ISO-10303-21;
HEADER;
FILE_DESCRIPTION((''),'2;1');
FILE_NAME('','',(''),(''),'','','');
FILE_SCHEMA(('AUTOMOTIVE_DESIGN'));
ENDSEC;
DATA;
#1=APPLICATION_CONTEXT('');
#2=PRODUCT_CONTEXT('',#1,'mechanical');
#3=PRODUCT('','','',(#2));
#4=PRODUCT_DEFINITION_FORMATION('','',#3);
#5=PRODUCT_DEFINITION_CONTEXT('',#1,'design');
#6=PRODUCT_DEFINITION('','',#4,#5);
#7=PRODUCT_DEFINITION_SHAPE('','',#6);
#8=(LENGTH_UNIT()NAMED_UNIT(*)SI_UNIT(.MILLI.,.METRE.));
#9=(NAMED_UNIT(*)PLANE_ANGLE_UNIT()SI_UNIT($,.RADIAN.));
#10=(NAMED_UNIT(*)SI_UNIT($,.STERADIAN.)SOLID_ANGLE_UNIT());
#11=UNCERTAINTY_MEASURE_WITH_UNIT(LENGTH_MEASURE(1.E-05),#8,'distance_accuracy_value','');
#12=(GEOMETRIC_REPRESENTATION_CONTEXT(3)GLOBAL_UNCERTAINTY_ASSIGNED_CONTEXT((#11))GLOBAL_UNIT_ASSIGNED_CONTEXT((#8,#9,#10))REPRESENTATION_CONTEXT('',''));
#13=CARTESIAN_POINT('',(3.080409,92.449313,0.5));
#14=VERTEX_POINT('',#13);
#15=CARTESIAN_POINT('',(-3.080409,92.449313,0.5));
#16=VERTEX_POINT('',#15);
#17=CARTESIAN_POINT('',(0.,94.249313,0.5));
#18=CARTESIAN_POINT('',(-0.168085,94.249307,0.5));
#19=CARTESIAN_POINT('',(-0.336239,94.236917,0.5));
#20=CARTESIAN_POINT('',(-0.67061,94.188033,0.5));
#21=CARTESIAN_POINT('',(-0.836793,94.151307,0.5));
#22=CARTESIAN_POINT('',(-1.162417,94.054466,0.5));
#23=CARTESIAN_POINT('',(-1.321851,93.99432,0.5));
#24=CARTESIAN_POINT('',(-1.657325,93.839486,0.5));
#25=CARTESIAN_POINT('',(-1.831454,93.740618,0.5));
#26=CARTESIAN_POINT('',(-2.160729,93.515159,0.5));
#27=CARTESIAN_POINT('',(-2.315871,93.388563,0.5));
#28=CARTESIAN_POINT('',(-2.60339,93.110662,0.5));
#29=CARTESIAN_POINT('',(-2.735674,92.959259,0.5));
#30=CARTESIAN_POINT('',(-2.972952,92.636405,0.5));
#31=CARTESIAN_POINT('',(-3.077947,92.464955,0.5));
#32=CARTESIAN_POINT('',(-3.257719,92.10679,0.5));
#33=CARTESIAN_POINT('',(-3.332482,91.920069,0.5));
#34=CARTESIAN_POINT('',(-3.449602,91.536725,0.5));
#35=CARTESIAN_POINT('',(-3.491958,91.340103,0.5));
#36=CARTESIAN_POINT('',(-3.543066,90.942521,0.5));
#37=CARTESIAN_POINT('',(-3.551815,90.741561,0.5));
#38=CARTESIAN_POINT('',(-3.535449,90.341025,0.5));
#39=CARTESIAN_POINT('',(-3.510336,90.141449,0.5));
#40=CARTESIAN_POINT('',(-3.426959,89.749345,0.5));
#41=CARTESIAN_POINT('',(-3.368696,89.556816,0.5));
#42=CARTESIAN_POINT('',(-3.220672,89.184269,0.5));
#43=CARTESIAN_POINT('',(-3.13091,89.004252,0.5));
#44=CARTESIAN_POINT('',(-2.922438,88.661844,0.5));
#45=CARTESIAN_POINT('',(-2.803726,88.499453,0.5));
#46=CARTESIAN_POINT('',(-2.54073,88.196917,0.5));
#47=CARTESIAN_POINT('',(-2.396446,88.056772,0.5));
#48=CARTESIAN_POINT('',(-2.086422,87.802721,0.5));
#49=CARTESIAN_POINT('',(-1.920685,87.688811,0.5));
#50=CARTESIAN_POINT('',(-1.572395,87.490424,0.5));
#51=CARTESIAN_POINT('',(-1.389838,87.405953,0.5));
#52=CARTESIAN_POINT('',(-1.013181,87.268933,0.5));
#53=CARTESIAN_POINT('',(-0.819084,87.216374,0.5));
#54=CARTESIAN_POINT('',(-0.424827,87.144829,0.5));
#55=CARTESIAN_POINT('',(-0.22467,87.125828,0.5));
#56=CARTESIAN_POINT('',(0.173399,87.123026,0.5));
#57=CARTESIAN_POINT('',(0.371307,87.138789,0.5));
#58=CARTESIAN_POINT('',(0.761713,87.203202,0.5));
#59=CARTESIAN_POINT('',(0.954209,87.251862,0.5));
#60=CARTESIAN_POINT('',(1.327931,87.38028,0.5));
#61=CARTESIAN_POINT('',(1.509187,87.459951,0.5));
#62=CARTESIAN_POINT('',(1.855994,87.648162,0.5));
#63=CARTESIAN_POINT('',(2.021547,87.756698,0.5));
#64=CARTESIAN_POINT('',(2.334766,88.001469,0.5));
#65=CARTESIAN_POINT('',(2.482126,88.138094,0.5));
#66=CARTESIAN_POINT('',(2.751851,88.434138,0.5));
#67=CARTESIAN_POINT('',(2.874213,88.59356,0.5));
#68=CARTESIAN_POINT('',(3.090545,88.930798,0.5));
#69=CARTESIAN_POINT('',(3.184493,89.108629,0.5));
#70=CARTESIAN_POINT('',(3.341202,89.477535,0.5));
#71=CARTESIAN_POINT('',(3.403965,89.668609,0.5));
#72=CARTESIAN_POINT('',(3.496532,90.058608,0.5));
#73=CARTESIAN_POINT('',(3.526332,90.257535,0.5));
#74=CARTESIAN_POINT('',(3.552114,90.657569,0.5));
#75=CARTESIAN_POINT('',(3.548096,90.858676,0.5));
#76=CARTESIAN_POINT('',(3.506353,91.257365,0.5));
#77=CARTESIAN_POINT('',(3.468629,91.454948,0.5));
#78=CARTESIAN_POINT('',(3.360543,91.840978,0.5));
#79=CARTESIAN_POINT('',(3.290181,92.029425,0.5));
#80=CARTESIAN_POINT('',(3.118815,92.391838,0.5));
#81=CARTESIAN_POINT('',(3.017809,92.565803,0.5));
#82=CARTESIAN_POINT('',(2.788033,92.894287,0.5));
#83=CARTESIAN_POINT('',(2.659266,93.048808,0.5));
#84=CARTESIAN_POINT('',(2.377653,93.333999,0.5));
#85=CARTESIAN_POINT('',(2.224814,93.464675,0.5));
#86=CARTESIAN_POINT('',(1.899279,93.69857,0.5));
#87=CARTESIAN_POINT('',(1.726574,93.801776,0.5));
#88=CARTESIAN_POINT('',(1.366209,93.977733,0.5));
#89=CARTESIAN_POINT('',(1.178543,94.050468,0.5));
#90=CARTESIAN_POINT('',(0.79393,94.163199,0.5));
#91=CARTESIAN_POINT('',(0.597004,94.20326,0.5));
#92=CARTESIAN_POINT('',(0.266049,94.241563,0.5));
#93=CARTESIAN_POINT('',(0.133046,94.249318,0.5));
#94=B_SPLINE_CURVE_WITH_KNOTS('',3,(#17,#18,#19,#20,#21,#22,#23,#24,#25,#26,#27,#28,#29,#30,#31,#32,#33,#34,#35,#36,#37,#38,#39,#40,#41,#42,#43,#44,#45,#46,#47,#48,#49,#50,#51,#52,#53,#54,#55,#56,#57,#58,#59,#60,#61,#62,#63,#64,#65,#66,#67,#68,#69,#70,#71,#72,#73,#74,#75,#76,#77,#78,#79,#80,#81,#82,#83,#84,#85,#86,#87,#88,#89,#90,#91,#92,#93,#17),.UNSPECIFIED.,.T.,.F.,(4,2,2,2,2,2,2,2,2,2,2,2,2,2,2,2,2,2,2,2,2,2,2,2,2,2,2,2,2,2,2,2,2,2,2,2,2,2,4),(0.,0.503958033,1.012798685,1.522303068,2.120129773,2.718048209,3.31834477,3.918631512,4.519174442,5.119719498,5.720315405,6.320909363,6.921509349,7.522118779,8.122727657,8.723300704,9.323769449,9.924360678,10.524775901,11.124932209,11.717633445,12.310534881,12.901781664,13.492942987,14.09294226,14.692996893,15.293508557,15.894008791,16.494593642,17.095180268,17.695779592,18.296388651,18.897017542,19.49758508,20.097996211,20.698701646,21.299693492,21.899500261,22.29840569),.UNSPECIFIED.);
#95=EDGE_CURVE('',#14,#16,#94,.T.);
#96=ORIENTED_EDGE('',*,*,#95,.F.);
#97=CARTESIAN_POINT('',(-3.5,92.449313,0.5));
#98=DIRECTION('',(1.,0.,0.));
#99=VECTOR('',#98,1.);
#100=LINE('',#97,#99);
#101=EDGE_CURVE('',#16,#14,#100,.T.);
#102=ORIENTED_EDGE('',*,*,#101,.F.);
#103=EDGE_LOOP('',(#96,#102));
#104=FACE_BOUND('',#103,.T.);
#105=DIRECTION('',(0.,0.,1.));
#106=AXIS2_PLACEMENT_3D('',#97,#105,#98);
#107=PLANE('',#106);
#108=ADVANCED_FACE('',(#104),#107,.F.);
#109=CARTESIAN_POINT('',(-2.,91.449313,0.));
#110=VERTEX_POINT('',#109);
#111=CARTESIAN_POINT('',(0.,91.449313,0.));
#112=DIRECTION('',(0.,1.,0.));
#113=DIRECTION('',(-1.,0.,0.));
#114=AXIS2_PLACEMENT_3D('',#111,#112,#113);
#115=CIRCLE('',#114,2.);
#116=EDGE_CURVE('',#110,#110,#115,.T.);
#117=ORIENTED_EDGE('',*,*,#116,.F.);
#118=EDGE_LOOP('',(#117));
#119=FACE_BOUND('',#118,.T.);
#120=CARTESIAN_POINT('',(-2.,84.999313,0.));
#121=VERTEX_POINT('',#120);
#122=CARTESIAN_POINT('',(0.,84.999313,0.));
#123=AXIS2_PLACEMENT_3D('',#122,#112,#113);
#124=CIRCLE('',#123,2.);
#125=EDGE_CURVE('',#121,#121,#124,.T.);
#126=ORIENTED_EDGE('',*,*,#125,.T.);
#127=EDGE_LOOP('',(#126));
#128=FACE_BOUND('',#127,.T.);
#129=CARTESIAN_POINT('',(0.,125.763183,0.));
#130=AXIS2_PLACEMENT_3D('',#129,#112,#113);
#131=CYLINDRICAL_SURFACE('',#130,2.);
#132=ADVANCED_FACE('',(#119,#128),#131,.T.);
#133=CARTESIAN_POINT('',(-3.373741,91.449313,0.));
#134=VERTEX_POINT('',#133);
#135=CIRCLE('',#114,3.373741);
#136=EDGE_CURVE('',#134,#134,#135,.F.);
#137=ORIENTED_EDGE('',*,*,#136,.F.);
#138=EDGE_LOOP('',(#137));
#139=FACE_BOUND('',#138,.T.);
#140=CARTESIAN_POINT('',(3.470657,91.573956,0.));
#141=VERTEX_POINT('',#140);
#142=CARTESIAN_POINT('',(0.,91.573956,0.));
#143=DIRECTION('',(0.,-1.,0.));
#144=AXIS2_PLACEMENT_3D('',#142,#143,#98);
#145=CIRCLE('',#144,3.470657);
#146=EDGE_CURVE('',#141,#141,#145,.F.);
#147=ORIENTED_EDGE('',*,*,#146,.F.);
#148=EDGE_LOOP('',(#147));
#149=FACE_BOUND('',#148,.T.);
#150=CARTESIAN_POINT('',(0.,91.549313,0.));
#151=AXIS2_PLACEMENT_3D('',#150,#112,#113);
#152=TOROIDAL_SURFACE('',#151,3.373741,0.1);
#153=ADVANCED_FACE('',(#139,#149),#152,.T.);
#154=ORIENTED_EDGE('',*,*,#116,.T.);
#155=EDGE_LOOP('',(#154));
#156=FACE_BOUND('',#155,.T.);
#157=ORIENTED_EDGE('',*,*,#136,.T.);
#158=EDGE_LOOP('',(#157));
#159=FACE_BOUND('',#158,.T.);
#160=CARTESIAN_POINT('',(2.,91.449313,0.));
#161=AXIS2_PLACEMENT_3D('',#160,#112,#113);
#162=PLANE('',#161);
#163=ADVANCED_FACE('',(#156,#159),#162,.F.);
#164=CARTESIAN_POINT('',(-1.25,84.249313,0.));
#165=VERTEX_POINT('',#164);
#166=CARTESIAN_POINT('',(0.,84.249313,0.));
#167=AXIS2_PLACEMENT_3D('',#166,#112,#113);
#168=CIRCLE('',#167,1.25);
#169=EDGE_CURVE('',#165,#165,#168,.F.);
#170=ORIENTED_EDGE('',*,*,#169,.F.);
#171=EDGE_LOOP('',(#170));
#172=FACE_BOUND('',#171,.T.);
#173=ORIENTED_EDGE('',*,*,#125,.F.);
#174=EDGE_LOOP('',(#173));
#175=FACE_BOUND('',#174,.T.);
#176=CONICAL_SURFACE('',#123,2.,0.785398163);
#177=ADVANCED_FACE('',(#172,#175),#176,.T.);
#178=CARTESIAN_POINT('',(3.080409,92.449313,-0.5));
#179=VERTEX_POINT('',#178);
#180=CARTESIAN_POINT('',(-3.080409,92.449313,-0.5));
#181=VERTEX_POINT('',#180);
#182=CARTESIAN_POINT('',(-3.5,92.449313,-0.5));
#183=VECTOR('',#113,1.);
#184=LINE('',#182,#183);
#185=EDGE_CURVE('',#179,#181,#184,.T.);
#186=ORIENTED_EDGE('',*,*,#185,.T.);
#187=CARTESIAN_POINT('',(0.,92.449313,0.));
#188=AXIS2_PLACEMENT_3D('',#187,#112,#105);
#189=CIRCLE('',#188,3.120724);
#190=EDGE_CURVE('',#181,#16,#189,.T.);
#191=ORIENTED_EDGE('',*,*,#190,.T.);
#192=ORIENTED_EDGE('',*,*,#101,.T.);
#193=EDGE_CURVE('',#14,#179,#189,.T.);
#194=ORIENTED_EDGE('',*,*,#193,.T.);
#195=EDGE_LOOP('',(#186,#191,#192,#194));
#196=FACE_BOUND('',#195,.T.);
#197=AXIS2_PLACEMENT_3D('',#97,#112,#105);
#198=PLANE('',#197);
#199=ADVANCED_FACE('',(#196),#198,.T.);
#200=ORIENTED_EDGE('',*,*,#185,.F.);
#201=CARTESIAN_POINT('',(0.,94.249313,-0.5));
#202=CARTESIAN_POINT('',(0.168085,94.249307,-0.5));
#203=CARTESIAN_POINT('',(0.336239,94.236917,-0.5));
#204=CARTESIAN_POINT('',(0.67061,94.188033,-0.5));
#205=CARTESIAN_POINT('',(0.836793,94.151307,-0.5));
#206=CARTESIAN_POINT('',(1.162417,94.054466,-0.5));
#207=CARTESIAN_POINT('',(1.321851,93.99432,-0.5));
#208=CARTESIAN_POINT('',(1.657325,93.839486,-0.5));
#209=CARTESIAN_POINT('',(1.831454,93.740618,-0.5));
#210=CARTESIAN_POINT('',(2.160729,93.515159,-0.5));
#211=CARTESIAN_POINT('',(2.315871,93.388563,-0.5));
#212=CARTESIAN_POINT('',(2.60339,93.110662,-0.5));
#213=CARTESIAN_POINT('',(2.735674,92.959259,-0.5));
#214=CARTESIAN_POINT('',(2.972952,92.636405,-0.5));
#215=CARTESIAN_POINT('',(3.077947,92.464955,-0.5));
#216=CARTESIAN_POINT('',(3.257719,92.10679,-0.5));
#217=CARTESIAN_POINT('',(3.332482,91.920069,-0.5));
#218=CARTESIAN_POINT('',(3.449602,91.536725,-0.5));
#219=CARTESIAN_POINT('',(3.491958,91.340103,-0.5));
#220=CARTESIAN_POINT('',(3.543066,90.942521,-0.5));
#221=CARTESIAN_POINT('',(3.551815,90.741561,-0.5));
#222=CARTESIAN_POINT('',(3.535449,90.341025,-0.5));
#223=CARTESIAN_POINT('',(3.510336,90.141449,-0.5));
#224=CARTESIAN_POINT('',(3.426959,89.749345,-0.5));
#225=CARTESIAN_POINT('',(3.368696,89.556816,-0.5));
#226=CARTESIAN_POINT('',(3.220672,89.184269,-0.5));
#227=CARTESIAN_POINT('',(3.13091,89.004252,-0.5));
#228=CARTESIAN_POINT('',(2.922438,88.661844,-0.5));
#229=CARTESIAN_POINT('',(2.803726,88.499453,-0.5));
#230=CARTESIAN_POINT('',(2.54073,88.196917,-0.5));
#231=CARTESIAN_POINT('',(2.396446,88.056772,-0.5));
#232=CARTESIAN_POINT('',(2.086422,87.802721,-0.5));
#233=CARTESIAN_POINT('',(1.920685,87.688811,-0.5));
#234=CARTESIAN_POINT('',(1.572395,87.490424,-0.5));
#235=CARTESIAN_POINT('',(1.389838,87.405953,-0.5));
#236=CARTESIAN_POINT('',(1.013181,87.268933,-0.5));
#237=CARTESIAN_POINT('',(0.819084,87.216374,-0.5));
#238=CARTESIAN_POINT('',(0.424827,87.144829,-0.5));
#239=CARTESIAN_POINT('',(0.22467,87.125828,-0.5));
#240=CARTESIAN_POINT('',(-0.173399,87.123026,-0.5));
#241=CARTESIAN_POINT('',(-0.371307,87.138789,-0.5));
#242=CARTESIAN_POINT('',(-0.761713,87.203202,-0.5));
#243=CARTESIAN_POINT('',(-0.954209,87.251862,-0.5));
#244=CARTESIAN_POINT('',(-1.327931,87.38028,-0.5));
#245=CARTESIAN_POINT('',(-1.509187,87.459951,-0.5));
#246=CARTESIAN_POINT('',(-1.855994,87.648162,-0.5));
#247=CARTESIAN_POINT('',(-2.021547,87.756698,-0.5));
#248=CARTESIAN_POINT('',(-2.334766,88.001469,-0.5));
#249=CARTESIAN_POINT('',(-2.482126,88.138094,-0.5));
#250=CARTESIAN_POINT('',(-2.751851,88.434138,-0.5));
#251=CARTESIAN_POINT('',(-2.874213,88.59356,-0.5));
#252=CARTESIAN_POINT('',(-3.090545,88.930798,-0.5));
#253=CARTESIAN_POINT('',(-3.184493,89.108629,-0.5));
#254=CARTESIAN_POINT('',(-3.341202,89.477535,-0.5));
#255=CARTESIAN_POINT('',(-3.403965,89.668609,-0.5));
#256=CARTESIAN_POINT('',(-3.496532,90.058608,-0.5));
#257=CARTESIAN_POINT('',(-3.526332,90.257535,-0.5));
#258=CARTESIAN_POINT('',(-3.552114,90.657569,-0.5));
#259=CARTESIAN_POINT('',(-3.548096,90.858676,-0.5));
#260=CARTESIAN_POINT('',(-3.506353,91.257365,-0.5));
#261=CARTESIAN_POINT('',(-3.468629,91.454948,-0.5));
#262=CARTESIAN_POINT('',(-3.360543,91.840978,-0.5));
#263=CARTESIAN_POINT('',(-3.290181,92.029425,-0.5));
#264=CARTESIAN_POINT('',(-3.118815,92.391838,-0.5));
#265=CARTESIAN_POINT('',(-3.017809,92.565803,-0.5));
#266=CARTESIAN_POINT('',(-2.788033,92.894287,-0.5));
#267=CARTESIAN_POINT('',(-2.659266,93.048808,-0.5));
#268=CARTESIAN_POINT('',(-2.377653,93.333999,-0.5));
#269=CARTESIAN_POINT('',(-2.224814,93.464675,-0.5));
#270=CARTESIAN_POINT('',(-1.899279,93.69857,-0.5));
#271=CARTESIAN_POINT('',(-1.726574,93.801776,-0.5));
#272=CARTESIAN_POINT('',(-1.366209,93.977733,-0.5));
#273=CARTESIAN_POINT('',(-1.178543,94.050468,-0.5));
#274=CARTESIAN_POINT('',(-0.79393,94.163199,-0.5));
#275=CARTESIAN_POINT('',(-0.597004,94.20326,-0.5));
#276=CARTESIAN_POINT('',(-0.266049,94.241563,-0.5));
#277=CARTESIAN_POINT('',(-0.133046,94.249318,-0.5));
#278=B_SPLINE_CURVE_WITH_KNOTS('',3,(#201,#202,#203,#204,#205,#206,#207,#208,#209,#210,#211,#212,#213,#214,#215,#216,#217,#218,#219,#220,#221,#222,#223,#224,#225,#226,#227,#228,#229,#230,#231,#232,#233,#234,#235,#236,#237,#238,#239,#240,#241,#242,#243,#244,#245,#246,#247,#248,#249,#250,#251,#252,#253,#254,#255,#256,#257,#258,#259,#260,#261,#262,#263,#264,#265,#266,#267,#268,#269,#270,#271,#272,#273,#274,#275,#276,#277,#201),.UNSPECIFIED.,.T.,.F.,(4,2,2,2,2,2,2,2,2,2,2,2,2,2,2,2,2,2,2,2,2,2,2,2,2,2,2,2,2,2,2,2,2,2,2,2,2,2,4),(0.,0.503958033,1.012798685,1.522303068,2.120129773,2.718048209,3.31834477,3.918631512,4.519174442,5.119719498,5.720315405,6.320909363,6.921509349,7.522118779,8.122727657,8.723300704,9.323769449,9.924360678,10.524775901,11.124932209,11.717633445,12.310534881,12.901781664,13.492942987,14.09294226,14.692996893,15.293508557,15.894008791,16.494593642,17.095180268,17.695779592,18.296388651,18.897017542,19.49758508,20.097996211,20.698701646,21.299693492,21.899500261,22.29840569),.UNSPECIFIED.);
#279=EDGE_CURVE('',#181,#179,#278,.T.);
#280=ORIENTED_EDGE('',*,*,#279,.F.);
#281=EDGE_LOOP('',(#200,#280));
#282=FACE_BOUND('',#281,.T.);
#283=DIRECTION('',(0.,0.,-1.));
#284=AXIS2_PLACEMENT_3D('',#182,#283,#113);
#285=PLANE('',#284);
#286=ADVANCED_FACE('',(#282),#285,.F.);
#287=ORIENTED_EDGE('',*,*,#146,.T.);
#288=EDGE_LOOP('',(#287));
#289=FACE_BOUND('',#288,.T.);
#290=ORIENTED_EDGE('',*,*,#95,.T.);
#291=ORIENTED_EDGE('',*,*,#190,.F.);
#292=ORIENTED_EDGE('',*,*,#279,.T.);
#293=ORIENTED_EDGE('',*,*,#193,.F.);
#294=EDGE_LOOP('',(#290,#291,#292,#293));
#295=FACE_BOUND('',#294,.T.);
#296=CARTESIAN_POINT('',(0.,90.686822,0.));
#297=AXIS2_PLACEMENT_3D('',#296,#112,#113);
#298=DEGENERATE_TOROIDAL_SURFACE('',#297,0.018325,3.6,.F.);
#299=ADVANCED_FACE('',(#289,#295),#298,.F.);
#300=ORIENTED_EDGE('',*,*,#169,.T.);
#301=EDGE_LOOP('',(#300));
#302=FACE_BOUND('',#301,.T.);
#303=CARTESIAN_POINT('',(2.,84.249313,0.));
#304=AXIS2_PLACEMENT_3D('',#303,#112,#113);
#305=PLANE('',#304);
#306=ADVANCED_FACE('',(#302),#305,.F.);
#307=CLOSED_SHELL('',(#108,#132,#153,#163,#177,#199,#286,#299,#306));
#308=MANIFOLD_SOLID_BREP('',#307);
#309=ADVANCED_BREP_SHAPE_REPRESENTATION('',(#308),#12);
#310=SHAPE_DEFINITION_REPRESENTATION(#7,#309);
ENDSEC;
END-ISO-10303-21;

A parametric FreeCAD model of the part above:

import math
import FreeCAD as App
import Part
import Sketcher

V = App.Vector
Q = App.Units.Quantity


def edges_at(feature, points):
    """Names of the edges that pass closest to the given points."""
    edges = feature.Shape.Edges
    near = lambda p: min(range(len(edges)), key=lambda i: edges[i].distToShape(Part.Vertex(*p))[0])
    return sorted({f"Edge{near(p) + 1}" for p in points})


def add_polygon(sketch, points):
    """Adds a closed chain of lines whose ends are joined by coincident constraints."""
    first, n = sketch.GeometryCount, len(points)
    for a, b in zip(points, points[1:] + points[:1]):
        sketch.addGeometry(Part.LineSegment(App.Vector(*a, 0), App.Vector(*b, 0)), False)
    for i in range(n):
        sketch.addConstraint(Sketcher.Constraint("Coincident", first + i, 2, first + (i + 1) % n, 1))

doc = App.newDocument("Part")
body = doc.addObject("PartDesign::Body", "Body")

sketch1 = body.newObject("Sketcher::SketchObject", "Sketch")
sketch1.AttachmentSupport = (doc.getObject("XY_Plane"), [""])
sketch1.MapMode = "FlatFace"
sketch1.addGeometry([
    Part.LineSegment(V(2, 91.4, 0), V(3.5, 91.4, 0)),
    Part.ArcOfCircle(Part.Circle(V(0, 90.7, 0), V(0, 0, 1), 3.6), math.radians(12), math.radians(82)),
    Part.LineSegment(V(0.5, 94.2, 0), V(0, 94.2, 0)),
    Part.LineSegment(V(0, 94.2, 0), V(0, 84.2, 0)),
    Part.LineSegment(V(0, 84.2, 0), V(2, 84.2, 0)),
    Part.LineSegment(V(2, 84.2, 0), V(2, 91.4, 0)),
], False)
sketch1.addConstraint([
    Sketcher.Constraint("Coincident", 0, 2, 1, 1),
    Sketcher.Constraint("Coincident", 1, 2, 2, 1),
    Sketcher.Constraint("Coincident", 2, 2, 3, 1),
    Sketcher.Constraint("Coincident", 3, 2, 4, 1),
    Sketcher.Constraint("Coincident", 4, 2, 5, 1),
    Sketcher.Constraint("Coincident", 5, 2, 0, 1),
    Sketcher.Constraint("Horizontal", 0),
    Sketcher.Constraint("Horizontal", 2),
    Sketcher.Constraint("Vertical", 3),
    Sketcher.Constraint("Horizontal", 4),
    Sketcher.Constraint("Vertical", 5),
    Sketcher.Constraint("PointOnObject", 2, 2, -2),
    Sketcher.Constraint("Radius", 1, Q("3.6 mm")),
    Sketcher.Constraint("DistanceX", 4, 1, 4, 2, Q("2 mm")),
    Sketcher.Constraint("DistanceY", 3, 2, 3, 1, Q("10 mm")),
    Sketcher.Constraint("DistanceX", 0, 1, 0, 2, Q("1.5 mm")),
    Sketcher.Constraint("DistanceX", 2, 2, 2, 1, Q("0.5 mm")),
    Sketcher.Constraint("DistanceY", 5, 1, 5, 2, Q("7.2 mm")),
    Sketcher.Constraint("DistanceY", -1, 1, 1, 3, Q("90.686822 mm")),
])
revolution = body.newObject("PartDesign::Revolution", "Revolution")
revolution.Profile = sketch1
revolution.ReferenceAxis = (sketch1, ["V_Axis"])
revolution.Angle = 360

sketch2 = body.newObject("Sketcher::SketchObject", "Sketch001")
sketch2.AttachmentSupport = (doc.getObject("XZ_Plane"), [""])
sketch2.MapMode = "FlatFace"
sketch2.AttachmentOffset = App.Placement(V(0, 0, -94.249313), App.Rotation())
add_polygon(sketch2, [(3.5, 0.5), (3.5, -0.5), (-3.5, -0.5), (-3.5, 0.5)])
sketch2.addConstraint([
    Sketcher.Constraint("Vertical", 0),
    Sketcher.Constraint("Horizontal", 1),
    Sketcher.Constraint("Vertical", 2),
    Sketcher.Constraint("Horizontal", 3),
    Sketcher.Constraint("Symmetric", 0, 2, 2, 2, -1, 1),
    Sketcher.Constraint("DistanceX", 1, 2, 1, 1, Q("7 mm")),
    Sketcher.Constraint("DistanceY", 0, 2, 0, 1, Q("1 mm")),
])
pocket1 = body.newObject("PartDesign::Pocket", "Pocket")
pocket1.Profile = sketch2
pocket1.Length = 1.8
pocket1.Reversed = True
doc.recompute()

fillet = body.newObject("PartDesign::Fillet", "Fillet")
fillet.Base = (pocket1, edges_at(pocket1, [(3.5, 91.449, 0)]))
fillet.Radius = 0.1
doc.recompute()

chamfer = body.newObject("PartDesign::Chamfer", "Chamfer")
chamfer.Base = (fillet, edges_at(fillet, [(2, 84.249, 0)]))
chamfer.Size = 0.75

doc.recompute()
